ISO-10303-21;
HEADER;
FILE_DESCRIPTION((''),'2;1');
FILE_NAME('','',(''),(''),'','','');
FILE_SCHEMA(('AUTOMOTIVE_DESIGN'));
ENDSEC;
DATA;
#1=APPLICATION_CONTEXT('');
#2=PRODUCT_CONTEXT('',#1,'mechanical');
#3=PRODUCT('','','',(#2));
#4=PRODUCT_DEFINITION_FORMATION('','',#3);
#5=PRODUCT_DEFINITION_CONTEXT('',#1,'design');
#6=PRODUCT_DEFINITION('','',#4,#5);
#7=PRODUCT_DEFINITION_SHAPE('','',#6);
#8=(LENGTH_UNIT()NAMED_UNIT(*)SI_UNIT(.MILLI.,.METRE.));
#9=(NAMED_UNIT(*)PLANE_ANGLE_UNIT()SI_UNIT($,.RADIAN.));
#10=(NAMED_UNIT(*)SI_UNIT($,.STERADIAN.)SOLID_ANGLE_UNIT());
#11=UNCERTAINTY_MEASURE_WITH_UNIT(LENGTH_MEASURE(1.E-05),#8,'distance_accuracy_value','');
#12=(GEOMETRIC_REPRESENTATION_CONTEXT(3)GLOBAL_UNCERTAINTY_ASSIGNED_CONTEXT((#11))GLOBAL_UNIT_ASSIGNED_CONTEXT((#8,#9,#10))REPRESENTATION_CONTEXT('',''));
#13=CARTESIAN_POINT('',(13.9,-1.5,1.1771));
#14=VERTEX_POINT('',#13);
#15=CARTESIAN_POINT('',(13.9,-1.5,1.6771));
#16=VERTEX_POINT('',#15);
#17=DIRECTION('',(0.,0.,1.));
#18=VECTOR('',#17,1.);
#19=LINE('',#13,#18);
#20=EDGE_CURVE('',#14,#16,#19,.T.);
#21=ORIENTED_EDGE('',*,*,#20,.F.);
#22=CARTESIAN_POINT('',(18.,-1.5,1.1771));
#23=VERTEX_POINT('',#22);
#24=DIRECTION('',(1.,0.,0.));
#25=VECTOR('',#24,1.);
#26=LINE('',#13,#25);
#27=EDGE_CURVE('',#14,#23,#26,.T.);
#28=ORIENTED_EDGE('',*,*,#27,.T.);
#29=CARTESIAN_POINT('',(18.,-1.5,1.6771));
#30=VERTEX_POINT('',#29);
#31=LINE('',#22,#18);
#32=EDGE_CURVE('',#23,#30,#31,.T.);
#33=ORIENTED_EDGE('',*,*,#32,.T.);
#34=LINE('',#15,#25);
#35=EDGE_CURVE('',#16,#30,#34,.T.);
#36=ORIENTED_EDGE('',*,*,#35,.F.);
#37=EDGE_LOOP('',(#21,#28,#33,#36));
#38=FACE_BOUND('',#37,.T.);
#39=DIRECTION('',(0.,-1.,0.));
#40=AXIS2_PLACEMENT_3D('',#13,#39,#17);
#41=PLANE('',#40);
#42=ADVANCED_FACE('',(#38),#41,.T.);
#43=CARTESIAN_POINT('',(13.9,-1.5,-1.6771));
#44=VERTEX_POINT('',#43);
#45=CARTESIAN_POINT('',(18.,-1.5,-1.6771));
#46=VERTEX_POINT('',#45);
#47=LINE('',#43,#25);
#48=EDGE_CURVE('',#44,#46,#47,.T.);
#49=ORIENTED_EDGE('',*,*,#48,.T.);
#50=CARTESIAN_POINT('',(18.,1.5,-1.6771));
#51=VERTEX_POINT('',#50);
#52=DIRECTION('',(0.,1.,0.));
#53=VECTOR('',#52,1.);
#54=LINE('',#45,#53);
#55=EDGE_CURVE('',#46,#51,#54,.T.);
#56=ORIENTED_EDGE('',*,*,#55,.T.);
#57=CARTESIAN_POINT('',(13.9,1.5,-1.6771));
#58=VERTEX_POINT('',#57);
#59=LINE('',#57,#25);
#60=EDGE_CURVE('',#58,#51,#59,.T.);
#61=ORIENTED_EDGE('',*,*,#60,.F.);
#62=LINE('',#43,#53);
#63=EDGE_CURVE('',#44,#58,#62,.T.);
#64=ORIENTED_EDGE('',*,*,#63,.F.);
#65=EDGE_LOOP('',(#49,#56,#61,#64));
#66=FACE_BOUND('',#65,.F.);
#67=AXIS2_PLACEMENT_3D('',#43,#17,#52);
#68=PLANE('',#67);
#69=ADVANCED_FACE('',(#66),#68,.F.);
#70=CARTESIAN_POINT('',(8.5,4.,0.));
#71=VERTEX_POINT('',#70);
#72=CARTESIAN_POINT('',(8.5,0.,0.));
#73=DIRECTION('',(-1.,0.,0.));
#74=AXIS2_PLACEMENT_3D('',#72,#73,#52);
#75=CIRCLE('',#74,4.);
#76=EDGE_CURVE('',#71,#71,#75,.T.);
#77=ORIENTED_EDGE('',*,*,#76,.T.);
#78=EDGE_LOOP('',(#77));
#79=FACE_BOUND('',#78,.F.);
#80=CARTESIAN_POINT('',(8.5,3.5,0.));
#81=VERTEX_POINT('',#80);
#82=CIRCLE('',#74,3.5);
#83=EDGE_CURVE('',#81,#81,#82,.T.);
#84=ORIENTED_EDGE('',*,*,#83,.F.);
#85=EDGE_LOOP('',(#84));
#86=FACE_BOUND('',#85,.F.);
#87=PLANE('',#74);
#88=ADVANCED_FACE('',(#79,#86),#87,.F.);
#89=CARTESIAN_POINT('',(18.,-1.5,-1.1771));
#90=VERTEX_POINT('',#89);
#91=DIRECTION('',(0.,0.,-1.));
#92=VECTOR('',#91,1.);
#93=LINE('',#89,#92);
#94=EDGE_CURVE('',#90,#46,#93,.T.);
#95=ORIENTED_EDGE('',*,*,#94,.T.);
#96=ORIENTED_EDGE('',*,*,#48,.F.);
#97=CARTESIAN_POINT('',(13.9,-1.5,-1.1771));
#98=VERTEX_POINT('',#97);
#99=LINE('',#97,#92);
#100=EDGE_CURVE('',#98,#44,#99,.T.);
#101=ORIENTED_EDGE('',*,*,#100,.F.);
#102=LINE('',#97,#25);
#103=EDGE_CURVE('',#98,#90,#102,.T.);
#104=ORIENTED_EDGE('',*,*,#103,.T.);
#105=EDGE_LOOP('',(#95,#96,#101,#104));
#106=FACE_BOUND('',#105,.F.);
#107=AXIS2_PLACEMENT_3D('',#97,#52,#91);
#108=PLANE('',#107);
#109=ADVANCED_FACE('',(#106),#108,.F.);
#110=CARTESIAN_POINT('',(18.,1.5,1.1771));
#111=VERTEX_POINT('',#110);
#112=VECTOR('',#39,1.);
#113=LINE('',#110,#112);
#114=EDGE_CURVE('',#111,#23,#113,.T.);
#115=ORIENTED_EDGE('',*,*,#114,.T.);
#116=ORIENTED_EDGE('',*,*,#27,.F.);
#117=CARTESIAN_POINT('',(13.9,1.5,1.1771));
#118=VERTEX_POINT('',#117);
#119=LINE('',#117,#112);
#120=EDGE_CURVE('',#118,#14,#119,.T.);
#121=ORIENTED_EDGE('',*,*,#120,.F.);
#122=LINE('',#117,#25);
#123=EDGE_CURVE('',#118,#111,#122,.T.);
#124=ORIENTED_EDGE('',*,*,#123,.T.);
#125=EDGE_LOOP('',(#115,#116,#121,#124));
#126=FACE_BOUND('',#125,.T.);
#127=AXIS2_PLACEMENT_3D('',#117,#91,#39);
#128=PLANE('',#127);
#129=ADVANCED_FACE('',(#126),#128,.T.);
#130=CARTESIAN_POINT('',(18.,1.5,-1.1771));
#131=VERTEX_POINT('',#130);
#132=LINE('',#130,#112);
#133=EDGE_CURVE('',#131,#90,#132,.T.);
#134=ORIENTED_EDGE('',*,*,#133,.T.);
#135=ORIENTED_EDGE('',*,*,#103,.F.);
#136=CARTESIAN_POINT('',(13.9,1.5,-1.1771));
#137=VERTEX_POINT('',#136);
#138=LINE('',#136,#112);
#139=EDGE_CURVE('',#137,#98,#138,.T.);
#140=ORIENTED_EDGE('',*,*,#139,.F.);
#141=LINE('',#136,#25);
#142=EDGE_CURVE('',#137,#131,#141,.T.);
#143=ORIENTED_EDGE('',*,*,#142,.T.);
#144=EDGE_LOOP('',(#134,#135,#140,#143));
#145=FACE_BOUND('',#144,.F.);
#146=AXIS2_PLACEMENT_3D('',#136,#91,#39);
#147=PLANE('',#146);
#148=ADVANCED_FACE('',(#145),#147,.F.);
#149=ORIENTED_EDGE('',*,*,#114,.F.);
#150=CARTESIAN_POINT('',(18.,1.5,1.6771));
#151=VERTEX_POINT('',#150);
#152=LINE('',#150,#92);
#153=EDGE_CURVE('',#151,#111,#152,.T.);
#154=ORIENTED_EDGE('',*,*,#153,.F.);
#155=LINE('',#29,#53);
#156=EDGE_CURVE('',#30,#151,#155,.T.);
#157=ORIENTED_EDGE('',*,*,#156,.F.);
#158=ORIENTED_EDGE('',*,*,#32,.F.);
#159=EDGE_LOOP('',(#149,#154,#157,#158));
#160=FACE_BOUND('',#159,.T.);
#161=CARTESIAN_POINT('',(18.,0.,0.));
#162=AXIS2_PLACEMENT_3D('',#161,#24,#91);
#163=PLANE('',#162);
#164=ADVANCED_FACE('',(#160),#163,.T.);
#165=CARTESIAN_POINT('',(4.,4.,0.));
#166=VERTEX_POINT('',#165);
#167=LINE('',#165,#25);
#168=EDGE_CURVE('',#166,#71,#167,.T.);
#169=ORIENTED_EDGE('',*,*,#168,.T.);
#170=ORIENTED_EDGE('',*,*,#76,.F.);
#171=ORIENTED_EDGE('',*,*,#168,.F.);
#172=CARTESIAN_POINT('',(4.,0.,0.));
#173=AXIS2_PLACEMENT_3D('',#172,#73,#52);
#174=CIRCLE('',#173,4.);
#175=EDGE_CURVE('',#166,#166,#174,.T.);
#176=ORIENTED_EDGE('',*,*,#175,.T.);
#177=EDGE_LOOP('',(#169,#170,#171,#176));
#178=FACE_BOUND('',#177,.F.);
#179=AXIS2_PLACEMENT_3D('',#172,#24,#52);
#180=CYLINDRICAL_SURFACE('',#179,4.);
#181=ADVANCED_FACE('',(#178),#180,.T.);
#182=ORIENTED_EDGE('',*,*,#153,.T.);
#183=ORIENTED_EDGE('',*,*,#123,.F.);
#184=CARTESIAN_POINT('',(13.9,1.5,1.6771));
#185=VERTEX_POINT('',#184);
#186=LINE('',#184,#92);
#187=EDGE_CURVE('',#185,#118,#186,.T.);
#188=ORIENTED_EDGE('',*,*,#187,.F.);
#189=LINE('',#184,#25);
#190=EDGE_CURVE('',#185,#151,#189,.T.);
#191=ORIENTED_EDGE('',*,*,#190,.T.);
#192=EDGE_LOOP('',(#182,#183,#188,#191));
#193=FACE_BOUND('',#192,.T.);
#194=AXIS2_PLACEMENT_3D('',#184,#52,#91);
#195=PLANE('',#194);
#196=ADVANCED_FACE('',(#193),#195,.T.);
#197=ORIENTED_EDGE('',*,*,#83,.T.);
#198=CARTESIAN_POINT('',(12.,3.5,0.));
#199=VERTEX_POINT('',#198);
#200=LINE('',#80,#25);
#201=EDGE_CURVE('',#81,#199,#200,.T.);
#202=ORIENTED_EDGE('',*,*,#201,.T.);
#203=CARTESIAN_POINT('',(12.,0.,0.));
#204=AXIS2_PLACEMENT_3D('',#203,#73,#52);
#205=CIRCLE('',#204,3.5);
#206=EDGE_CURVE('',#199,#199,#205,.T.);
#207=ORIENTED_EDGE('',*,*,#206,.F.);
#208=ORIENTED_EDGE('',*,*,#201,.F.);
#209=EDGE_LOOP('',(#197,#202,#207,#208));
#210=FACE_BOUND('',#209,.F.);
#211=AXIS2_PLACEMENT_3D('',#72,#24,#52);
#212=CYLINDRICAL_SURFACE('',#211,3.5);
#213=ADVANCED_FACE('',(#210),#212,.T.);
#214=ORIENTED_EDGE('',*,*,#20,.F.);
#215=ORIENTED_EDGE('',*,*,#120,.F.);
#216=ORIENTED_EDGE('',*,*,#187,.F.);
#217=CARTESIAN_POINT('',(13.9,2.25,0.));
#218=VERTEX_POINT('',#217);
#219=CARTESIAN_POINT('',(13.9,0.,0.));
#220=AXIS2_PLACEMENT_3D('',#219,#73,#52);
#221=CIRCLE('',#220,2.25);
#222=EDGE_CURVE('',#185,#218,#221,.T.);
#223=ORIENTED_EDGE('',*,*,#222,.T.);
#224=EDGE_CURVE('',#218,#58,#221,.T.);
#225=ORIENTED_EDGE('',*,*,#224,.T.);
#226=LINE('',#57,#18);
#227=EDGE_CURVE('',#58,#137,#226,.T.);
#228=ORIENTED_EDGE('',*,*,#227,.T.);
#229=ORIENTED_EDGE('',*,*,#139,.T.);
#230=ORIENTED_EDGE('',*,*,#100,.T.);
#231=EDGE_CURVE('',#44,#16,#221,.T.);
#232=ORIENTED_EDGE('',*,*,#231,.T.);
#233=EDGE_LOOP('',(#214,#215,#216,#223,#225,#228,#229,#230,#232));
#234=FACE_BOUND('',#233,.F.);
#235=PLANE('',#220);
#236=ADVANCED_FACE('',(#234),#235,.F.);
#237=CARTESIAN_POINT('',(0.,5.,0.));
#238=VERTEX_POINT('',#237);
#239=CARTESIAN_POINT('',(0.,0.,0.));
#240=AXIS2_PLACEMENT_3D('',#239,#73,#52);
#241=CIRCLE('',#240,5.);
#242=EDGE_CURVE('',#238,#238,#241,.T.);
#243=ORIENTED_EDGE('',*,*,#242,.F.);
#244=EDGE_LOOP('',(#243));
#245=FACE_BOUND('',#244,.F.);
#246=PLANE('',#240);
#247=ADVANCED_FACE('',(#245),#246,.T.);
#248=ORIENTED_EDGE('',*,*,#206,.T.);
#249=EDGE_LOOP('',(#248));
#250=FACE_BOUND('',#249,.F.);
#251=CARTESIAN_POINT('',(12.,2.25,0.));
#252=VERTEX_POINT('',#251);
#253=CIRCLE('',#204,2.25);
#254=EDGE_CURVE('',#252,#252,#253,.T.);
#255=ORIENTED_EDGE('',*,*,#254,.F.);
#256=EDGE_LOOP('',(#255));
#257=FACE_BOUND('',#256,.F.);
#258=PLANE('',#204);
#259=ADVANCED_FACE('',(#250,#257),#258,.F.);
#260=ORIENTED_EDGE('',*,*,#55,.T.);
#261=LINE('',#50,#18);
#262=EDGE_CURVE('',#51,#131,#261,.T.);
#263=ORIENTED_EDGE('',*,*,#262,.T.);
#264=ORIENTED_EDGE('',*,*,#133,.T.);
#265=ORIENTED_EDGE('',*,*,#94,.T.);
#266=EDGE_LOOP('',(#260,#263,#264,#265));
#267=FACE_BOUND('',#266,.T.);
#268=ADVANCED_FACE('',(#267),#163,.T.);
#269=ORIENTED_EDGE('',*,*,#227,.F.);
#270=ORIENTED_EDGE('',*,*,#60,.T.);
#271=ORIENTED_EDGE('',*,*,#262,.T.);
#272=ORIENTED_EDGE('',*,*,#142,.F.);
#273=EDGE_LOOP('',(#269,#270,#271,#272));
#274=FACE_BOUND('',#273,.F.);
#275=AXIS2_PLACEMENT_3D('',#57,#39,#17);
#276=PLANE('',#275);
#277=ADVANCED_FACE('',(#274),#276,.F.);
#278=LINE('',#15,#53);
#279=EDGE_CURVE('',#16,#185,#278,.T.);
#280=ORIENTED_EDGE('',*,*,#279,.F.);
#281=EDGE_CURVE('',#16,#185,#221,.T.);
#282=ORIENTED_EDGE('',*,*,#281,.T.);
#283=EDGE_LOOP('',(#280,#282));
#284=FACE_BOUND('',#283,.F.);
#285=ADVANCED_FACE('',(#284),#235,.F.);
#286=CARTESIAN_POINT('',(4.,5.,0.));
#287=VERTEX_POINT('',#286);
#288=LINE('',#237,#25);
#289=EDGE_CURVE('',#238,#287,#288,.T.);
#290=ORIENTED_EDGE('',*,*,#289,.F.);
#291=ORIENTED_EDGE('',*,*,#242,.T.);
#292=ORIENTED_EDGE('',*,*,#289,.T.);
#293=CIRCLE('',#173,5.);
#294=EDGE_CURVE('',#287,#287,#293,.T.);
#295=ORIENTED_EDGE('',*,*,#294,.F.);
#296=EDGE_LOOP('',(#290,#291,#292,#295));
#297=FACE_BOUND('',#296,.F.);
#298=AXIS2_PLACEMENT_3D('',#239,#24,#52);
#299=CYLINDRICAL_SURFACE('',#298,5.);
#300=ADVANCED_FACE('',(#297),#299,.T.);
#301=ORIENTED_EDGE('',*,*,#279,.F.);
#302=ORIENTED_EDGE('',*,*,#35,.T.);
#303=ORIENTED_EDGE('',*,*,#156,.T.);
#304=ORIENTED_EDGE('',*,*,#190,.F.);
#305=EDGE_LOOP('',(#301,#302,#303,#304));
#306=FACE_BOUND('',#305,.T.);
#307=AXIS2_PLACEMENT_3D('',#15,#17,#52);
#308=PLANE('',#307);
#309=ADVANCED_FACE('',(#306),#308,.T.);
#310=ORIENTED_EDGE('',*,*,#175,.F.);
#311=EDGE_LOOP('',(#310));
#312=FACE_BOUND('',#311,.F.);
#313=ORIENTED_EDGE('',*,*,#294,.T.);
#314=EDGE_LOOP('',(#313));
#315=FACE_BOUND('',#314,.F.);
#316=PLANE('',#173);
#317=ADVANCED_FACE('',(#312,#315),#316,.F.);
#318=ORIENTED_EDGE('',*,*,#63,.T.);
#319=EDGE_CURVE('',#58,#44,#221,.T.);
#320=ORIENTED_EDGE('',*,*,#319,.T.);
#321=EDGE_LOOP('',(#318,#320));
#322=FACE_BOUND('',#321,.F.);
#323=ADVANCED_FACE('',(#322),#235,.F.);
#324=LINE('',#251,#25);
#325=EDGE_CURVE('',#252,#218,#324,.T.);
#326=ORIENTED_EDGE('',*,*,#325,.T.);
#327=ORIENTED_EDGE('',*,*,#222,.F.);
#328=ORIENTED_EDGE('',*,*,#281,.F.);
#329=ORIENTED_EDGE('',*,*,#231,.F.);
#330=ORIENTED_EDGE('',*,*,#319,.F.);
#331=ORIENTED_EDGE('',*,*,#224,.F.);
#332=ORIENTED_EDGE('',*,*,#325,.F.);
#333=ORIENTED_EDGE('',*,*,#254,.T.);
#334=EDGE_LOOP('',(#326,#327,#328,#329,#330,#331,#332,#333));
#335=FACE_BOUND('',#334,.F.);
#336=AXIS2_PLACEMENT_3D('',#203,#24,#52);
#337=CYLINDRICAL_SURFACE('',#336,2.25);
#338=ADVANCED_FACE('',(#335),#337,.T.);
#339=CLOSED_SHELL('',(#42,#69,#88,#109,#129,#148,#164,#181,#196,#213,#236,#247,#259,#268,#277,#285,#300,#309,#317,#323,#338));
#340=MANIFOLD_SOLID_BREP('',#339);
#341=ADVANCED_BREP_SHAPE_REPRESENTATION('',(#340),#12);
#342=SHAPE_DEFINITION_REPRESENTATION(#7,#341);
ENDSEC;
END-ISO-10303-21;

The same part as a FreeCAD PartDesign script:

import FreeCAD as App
import Part
import Sketcher
from FreeCAD import Vector


def add_polygon(sketch, points):
    """Adds a closed chain of lines whose ends are joined by coincident constraints."""
    first, n = sketch.GeometryCount, len(points)
    for a, b in zip(points, points[1:] + points[:1]):
        sketch.addGeometry(Part.LineSegment(App.Vector(*a, 0), App.Vector(*b, 0)), False)
    for i in range(n):
        sketch.addConstraint(Sketcher.Constraint("Coincident", first + i, 2, first + (i + 1) % n, 1))

doc = App.newDocument("Part")
body = doc.addObject("PartDesign::Body", "Body")

# Sketch on XY plane
sketch1 = body.newObject("Sketcher::SketchObject", "Sketch")
sketch1.AttachmentSupport = (doc.getObject("XY_Plane"), [""])
sketch1.MapMode = "FlatFace"
add_polygon(sketch1, [(0, 5), (0, 0), (13.9, 0), (13.9, 2.2), (12, 2.2), (12, 3.5), (8.5, 3.5), (8.5, 4), (4, 4), (4, 5)])  # lines 0-9
sketch1.addConstraint(Sketcher.Constraint("Vertical", 0))
sketch1.addConstraint(Sketcher.Constraint("Horizontal", 1))
sketch1.addConstraint(Sketcher.Constraint("Vertical", 2))
sketch1.addConstraint(Sketcher.Constraint("Horizontal", 3))
sketch1.addConstraint(Sketcher.Constraint("Vertical", 4))
sketch1.addConstraint(Sketcher.Constraint("Horizontal", 5))
sketch1.addConstraint(Sketcher.Constraint("Vertical", 6))
sketch1.addConstraint(Sketcher.Constraint("Horizontal", 7))
sketch1.addConstraint(Sketcher.Constraint("Vertical", 8))
sketch1.addConstraint(Sketcher.Constraint("Horizontal", 9))
sketch1.addConstraint(Sketcher.Constraint("Coincident", 0, 2, -1, 1))
sketch1.addConstraint(Sketcher.Constraint("DistanceX", 9, 2, 9, 1, 4.0))
sketch1.addConstraint(Sketcher.Constraint("DistanceY", 0, 2, 0, 1, 5.0))
sketch1.addConstraint(Sketcher.Constraint("DistanceX", 3, 2, 3, 1, 1.9))
sketch1.addConstraint(Sketcher.Constraint("DistanceX", 5, 2, 5, 1, 3.5))
sketch1.addConstraint(Sketcher.Constraint("DistanceX", 7, 2, 7, 1, 4.5))
sketch1.addConstraint(Sketcher.Constraint("DistanceY", -1, 1, 6, 2, 4.0))
sketch1.addConstraint(Sketcher.Constraint("DistanceY", 2, 1, 2, 2, 2.25))
sketch1.addConstraint(Sketcher.Constraint("DistanceY", -1, 1, 4, 2, 3.5))
revolution = body.newObject("PartDesign::Revolution", "Revolution")
revolution.Profile = sketch1
revolution.ReferenceAxis = (sketch1, ["H_Axis"])
revolution.Angle = 360

# Sketch on YZ plane
sketch2 = body.newObject("Sketcher::SketchObject", "Sketch001")
sketch2.AttachmentSupport = (doc.getObject("YZ_Plane"), [""])
sketch2.MapMode = "FlatFace"
sketch2.AttachmentOffset = App.Placement(Vector(0, 0, 13.9), App.Rotation())
add_polygon(sketch2, [(-1.5, -1.7), (1.5, -1.7), (1.5, -1.2), (-1.5, -1.2)])  # lines 0-3
add_polygon(sketch2, [(1.5, 1.2), (1.5, 1.7), (-1.5, 1.7), (-1.5, 1.2)])  # lines 4-7
sketch2.addConstraint(Sketcher.Constraint("Horizontal", 0))
sketch2.addConstraint(Sketcher.Constraint("Vertical", 1))
sketch2.addConstraint(Sketcher.Constraint("Horizontal", 2))
sketch2.addConstraint(Sketcher.Constraint("Vertical", 3))
sketch2.addConstraint(Sketcher.Constraint("Vertical", 4))
sketch2.addConstraint(Sketcher.Constraint("Horizontal", 5))
sketch2.addConstraint(Sketcher.Constraint("Vertical", 6))
sketch2.addConstraint(Sketcher.Constraint("Horizontal", 7))
sketch2.addConstraint(Sketcher.Constraint("Symmetric", 3, 2, 4, 2, -1, 1))
sketch2.addConstraint(Sketcher.Constraint("Symmetric", 1, 2, 6, 2, -1, 1))
sketch2.addConstraint(Sketcher.Constraint("Vertical", 1, 2, 4, 2))
sketch2.addConstraint(Sketcher.Constraint("DistanceX", 0, 1, 0, 2, 3.0))
sketch2.addConstraint(Sketcher.Constraint("DistanceY", 1, 1, 1, 2, 0.5))
sketch2.addConstraint(Sketcher.Constraint("DistanceY", 0, 2, -1, 1, 1.677))
pad1 = body.newObject("PartDesign::Pad", "Pad")
pad1.Profile = sketch2
pad1.Length = 4.1

doc.recompute()
